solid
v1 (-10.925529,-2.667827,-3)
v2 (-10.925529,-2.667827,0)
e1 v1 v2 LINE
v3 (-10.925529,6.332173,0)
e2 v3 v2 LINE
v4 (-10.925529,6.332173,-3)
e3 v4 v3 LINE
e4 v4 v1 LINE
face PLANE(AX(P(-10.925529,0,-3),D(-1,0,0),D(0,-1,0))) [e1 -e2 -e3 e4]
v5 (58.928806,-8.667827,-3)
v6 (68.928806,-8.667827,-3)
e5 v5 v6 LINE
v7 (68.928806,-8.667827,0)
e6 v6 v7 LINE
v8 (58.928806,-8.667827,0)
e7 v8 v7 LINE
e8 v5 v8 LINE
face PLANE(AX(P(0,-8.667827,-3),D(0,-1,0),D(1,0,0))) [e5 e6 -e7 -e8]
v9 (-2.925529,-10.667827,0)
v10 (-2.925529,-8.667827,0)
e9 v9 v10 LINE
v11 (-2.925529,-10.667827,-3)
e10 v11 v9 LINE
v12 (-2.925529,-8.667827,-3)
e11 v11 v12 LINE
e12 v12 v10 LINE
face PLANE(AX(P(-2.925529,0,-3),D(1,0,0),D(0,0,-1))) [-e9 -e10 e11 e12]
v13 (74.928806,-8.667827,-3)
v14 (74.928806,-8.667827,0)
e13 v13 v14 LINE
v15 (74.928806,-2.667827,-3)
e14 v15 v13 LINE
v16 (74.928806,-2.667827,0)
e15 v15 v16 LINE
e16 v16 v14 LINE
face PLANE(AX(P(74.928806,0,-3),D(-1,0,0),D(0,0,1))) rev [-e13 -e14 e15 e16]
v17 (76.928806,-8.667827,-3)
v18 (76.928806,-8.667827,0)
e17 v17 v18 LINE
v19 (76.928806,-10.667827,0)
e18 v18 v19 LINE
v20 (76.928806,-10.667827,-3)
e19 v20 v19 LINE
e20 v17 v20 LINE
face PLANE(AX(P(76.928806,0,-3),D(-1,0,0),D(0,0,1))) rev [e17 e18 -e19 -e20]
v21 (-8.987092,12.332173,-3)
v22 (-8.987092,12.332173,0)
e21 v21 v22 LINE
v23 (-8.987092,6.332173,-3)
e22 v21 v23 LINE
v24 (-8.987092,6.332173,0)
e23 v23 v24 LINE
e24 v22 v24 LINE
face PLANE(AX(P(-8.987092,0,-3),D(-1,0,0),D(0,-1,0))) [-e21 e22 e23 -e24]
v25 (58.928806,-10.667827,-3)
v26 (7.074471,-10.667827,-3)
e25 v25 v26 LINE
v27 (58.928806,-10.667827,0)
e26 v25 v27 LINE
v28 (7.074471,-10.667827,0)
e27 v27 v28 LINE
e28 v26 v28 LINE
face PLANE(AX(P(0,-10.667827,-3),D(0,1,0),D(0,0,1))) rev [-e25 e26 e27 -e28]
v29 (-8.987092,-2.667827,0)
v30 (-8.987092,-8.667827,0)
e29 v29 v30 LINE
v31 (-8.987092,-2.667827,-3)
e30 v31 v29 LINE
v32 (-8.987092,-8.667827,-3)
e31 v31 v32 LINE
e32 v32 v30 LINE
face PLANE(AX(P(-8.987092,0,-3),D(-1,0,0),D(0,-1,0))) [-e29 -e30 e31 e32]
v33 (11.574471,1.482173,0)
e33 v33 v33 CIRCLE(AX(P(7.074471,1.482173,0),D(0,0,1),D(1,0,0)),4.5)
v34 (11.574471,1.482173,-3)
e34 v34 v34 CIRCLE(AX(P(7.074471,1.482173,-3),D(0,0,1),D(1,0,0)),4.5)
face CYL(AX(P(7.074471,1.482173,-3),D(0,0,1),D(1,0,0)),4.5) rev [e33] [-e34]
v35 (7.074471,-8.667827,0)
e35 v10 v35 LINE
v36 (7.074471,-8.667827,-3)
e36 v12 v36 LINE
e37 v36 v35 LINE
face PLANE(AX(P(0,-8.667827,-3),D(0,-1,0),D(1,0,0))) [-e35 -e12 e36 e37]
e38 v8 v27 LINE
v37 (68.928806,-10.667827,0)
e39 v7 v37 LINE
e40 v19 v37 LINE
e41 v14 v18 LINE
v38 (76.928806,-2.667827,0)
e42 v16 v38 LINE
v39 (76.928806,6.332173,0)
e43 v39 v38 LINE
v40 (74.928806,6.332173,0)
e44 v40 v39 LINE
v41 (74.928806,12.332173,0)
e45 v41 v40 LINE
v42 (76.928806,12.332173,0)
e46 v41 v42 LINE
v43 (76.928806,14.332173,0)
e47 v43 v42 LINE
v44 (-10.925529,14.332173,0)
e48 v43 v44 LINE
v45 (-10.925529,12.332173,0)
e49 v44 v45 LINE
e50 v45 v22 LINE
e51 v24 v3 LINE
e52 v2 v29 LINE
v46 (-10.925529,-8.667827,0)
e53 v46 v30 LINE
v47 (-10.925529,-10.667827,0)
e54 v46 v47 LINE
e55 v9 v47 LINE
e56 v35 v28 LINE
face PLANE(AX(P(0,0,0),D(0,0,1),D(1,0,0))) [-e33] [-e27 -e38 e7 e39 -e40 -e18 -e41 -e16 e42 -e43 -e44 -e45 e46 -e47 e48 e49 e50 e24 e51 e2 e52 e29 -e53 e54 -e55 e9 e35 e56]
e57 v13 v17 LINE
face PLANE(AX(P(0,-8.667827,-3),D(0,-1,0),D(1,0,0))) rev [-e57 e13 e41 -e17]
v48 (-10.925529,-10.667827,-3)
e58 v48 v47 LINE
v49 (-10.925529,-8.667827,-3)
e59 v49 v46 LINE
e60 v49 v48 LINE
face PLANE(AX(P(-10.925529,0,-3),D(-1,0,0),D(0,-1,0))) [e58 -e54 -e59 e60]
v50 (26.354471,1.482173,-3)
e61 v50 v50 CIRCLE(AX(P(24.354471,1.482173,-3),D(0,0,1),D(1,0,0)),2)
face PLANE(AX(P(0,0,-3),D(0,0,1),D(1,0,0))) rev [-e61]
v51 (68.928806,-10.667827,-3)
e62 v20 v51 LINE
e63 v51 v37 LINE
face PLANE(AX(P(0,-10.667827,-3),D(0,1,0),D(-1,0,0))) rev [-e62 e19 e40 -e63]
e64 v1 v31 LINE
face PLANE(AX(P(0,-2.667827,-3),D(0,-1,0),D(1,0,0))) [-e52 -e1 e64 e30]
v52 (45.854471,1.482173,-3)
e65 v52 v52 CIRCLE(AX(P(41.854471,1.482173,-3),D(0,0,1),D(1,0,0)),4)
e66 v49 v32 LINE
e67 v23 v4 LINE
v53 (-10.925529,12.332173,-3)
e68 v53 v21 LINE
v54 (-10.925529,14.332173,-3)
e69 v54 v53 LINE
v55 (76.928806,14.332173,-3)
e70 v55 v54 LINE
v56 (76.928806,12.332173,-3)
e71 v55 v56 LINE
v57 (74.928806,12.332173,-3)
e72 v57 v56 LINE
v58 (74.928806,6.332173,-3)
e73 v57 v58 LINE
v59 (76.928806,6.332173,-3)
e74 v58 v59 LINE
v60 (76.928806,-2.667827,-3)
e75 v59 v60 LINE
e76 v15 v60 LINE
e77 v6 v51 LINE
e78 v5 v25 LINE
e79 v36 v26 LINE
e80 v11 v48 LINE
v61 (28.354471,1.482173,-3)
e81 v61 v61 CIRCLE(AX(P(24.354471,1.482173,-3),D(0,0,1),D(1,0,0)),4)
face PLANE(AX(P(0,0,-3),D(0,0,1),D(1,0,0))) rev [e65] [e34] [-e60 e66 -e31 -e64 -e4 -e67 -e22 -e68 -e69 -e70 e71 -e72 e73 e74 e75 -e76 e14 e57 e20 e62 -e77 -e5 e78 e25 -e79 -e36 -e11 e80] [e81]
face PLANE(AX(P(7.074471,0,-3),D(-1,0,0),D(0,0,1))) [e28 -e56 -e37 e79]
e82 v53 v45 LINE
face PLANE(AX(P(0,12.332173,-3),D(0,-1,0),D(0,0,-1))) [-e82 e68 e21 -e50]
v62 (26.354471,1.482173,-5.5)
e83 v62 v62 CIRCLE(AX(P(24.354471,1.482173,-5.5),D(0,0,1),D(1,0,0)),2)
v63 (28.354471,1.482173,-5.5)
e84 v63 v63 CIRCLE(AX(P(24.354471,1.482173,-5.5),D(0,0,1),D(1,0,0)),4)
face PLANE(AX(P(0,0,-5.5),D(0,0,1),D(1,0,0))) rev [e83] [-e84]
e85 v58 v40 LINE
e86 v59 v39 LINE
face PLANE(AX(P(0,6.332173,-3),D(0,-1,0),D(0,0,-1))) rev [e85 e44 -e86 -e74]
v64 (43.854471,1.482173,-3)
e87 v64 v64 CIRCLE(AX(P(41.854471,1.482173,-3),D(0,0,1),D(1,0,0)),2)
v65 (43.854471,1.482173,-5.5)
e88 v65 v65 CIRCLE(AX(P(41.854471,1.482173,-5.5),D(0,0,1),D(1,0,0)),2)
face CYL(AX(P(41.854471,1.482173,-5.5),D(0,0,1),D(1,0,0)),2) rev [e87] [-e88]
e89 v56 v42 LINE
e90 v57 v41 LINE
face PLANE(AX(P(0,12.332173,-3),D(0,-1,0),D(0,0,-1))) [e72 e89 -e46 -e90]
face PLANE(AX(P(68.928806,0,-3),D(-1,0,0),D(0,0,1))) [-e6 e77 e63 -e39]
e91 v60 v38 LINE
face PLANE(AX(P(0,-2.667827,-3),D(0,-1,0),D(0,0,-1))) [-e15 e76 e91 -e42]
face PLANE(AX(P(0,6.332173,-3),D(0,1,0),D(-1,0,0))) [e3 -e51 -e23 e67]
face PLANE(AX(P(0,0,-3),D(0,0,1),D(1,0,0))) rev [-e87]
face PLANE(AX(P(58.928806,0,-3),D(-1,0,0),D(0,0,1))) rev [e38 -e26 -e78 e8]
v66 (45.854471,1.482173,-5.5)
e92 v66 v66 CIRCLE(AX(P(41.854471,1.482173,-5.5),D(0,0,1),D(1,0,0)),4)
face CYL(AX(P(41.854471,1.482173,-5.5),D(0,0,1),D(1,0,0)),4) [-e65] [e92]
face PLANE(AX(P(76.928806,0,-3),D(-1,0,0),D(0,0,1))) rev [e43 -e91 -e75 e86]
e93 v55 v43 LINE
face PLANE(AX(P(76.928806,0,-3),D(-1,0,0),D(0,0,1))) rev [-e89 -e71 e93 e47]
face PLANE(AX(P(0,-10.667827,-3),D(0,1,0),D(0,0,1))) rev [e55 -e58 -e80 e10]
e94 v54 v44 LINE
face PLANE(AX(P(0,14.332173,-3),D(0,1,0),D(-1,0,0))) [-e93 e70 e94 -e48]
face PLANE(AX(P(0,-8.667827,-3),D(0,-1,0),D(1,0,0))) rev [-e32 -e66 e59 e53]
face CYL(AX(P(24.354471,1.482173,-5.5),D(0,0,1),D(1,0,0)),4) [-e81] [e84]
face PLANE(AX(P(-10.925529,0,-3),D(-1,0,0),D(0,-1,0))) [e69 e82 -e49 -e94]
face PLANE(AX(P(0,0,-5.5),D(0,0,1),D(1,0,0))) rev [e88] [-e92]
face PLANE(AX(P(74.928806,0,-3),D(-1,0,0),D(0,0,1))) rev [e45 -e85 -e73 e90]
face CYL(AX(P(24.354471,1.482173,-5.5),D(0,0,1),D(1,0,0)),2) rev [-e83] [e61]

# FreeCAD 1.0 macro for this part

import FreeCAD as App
import Part
import Sketcher
Q = App.Units.Quantity

doc = App.newDocument("Part")
body = doc.addObject("PartDesign::Body", "Body")

# Sketch on XY plane
sketch1 = body.newObject("Sketcher::SketchObject", "Sketch")
sketch1.AttachmentSupport = (doc.getObject("XY_Plane"), [""])
sketch1.MapMode = "FlatFace"
sketch1.addGeometry(Part.LineSegment(App.Vector(7.074471, -10.667827, 0), App.Vector(58.928806, -10.667827, 0)), False)
sketch1.addGeometry(Part.LineSegment(App.Vector(58.928806, -10.667827, 0), App.Vector(58.928806, -8.667827, 0)), False)
sketch1.addGeometry(Part.LineSegment(App.Vector(58.928806, -8.667827, 0), App.Vector(68.928806, -8.667827, 0)), False)
sketch1.addGeometry(Part.LineSegment(App.Vector(68.928806, -8.667827, 0), App.Vector(68.928806, -10.667827, 0)), False)
sketch1.addGeometry(Part.LineSegment(App.Vector(68.928806, -10.667827, 0), App.Vector(76.928806, -10.667827, 0)), False)
sketch1.addGeometry(Part.LineSegment(App.Vector(76.928806, -10.667827, 0), App.Vector(76.928806, -8.667827, 0)), False)
sketch1.addGeometry(Part.LineSegment(App.Vector(76.928806, -8.667827, 0), App.Vector(74.928806, -8.667827, 0)), False)
sketch1.addGeometry(Part.LineSegment(App.Vector(74.928806, -8.667827, 0), App.Vector(74.928806, -2.667827, 0)), False)
sketch1.addGeometry(Part.LineSegment(App.Vector(74.928806, -2.667827, 0), App.Vector(76.928806, -2.667827, 0)), False)
sketch1.addGeometry(Part.LineSegment(App.Vector(76.928806, -2.667827, 0), App.Vector(76.928806, 6.332173, 0)), False)
sketch1.addGeometry(Part.LineSegment(App.Vector(76.928806, 6.332173, 0), App.Vector(74.928806, 6.332173, 0)), False)
sketch1.addGeometry(Part.LineSegment(App.Vector(74.928806, 6.332173, 0), App.Vector(74.928806, 12.332173, 0)), False)
sketch1.addGeometry(Part.LineSegment(App.Vector(74.928806, 12.332173, 0), App.Vector(76.928806, 12.332173, 0)), False)
sketch1.addGeometry(Part.LineSegment(App.Vector(76.928806, 12.332173, 0), App.Vector(76.928806, 14.332173, 0)), False)
sketch1.addGeometry(Part.LineSegment(App.Vector(76.928806, 14.332173, 0), App.Vector(-10.925529, 14.332173, 0)), False)
sketch1.addGeometry(Part.LineSegment(App.Vector(-10.925529, 14.332173, 0), App.Vector(-10.925529, 12.332173, 0)), False)
sketch1.addGeometry(Part.LineSegment(App.Vector(-10.925529, 12.332173, 0), App.Vector(-8.987092, 12.332173, 0)), False)
sketch1.addGeometry(Part.LineSegment(App.Vector(-8.987092, 12.332173, 0), App.Vector(-8.987092, 6.332173, 0)), False)
sketch1.addGeometry(Part.LineSegment(App.Vector(-8.987092, 6.332173, 0), App.Vector(-10.925529, 6.332173, 0)), False)
sketch1.addGeometry(Part.LineSegment(App.Vector(-10.925529, 6.332173, 0), App.Vector(-10.925529, -2.667827, 0)), False)
sketch1.addGeometry(Part.LineSegment(App.Vector(-10.925529, -2.667827, 0), App.Vector(-8.987092, -2.667827, 0)), False)
sketch1.addGeometry(Part.LineSegment(App.Vector(-8.987092, -2.667827, 0), App.Vector(-8.987092, -8.667827, 0)), False)
sketch1.addGeometry(Part.LineSegment(App.Vector(-8.987092, -8.667827, 0), App.Vector(-10.925529, -8.667827, 0)), False)
sketch1.addGeometry(Part.LineSegment(App.Vector(-10.925529, -8.667827, 0), App.Vector(-10.925529, -10.667827, 0)), False)
sketch1.addGeometry(Part.LineSegment(App.Vector(-10.925529, -10.667827, 0), App.Vector(-2.925529, -10.667827, 0)), False)
sketch1.addGeometry(Part.LineSegment(App.Vector(-2.925529, -10.667827, 0), App.Vector(-2.925529, -8.667827, 0)), False)
sketch1.addGeometry(Part.LineSegment(App.Vector(-2.925529, -8.667827, 0), App.Vector(7.074471, -8.667827, 0)), False)
sketch1.addGeometry(Part.LineSegment(App.Vector(7.074471, -8.667827, 0), App.Vector(7.074471, -10.667827, 0)), False)
sketch1.addGeometry(Part.Circle(App.Vector(7.074471, 1.482173, 0), App.Vector(0, 0, 1), 4.5), False)
sketch1.addConstraint(Sketcher.Constraint("Coincident", 0, 2, 1, 1))
sketch1.addConstraint(Sketcher.Constraint("Coincident", 1, 2, 2, 1))
sketch1.addConstraint(Sketcher.Constraint("Coincident", 2, 2, 3, 1))
sketch1.addConstraint(Sketcher.Constraint("Coincident", 3, 2, 4, 1))
sketch1.addConstraint(Sketcher.Constraint("Coincident", 4, 2, 5, 1))
sketch1.addConstraint(Sketcher.Constraint("Coincident", 5, 2, 6, 1))
sketch1.addConstraint(Sketcher.Constraint("Coincident", 6, 2, 7, 1))
sketch1.addConstraint(Sketcher.Constraint("Coincident", 7, 2, 8, 1))
sketch1.addConstraint(Sketcher.Constraint("Coincident", 8, 2, 9, 1))
sketch1.addConstraint(Sketcher.Constraint("Coincident", 9, 2, 10, 1))
sketch1.addConstraint(Sketcher.Constraint("Coincident", 10, 2, 11, 1))
sketch1.addConstraint(Sketcher.Constraint("Coincident", 11, 2, 12, 1))
sketch1.addConstraint(Sketcher.Constraint("Coincident", 12, 2, 13, 1))
sketch1.addConstraint(Sketcher.Constraint("Coincident", 13, 2, 14, 1))
sketch1.addConstraint(Sketcher.Constraint("Coincident", 14, 2, 15, 1))
sketch1.addConstraint(Sketcher.Constraint("Coincident", 15, 2, 16, 1))
sketch1.addConstraint(Sketcher.Constraint("Coincident", 16, 2, 17, 1))
sketch1.addConstraint(Sketcher.Constraint("Coincident", 17, 2, 18, 1))
sketch1.addConstraint(Sketcher.Constraint("Coincident", 18, 2, 19, 1))
sketch1.addConstraint(Sketcher.Constraint("Coincident", 19, 2, 20, 1))
sketch1.addConstraint(Sketcher.Constraint("Coincident", 20, 2, 21, 1))
sketch1.addConstraint(Sketcher.Constraint("Coincident", 21, 2, 22, 1))
sketch1.addConstraint(Sketcher.Constraint("Coincident", 22, 2, 23, 1))
sketch1.addConstraint(Sketcher.Constraint("Coincident", 23, 2, 24, 1))
sketch1.addConstraint(Sketcher.Constraint("Coincident", 24, 2, 25, 1))
sketch1.addConstraint(Sketcher.Constraint("Coincident", 25, 2, 26, 1))
sketch1.addConstraint(Sketcher.Constraint("Coincident", 26, 2, 27, 1))
sketch1.addConstraint(Sketcher.Constraint("Coincident", 27, 2, 0, 1))
sketch1.addConstraint(Sketcher.Constraint("Horizontal", 0))
sketch1.addConstraint(Sketcher.Constraint("Vertical", 1))
sketch1.addConstraint(Sketcher.Constraint("Horizontal", 2))
sketch1.addConstraint(Sketcher.Constraint("Vertical", 3))
sketch1.addConstraint(Sketcher.Constraint("Horizontal", 4))
sketch1.addConstraint(Sketcher.Constraint("Vertical", 5))
sketch1.addConstraint(Sketcher.Constraint("Horizontal", 6))
sketch1.addConstraint(Sketcher.Constraint("Vertical", 7))
sketch1.addConstraint(Sketcher.Constraint("Horizontal", 8))
sketch1.addConstraint(Sketcher.Constraint("Vertical", 9))
sketch1.addConstraint(Sketcher.Constraint("Horizontal", 10))
sketch1.addConstraint(Sketcher.Constraint("Vertical", 11))
sketch1.addConstraint(Sketcher.Constraint("Horizontal", 12))
sketch1.addConstraint(Sketcher.Constraint("Vertical", 13))
sketch1.addConstraint(Sketcher.Constraint("Horizontal", 14))
sketch1.addConstraint(Sketcher.Constraint("Vertical", 15))
sketch1.addConstraint(Sketcher.Constraint("Horizontal", 16))
sketch1.addConstraint(Sketcher.Constraint("Vertical", 17))
sketch1.addConstraint(Sketcher.Constraint("Horizontal", 18))
sketch1.addConstraint(Sketcher.Constraint("Vertical", 19))
sketch1.addConstraint(Sketcher.Constraint("Horizontal", 20))
sketch1.addConstraint(Sketcher.Constraint("Vertical", 21))
sketch1.addConstraint(Sketcher.Constraint("Horizontal", 22))
sketch1.addConstraint(Sketcher.Constraint("Vertical", 23))
sketch1.addConstraint(Sketcher.Constraint("Horizontal", 24))
sketch1.addConstraint(Sketcher.Constraint("Vertical", 25))
sketch1.addConstraint(Sketcher.Constraint("Horizontal", 26))
sketch1.addConstraint(Sketcher.Constraint("Vertical", 27))
sketch1.addConstraint(Sketcher.Constraint("Horizontal", 0, 2, 3, 2))
sketch1.addConstraint(Sketcher.Constraint("Horizontal", 2, 2, 5, 2))
sketch1.addConstraint(Sketcher.Constraint("Horizontal", 12, 2, 15, 2))
sketch1.addConstraint(Sketcher.Constraint("Horizontal", 10, 2, 17, 2))
sketch1.addConstraint(Sketcher.Constraint("Horizontal", 8, 2, 19, 2))
sketch1.addConstraint(Sketcher.Constraint("Horizontal", 6, 2, 21, 2))
sketch1.addConstraint(Sketcher.Constraint("Horizontal", 4, 2, 23, 2))
sketch1.addConstraint(Sketcher.Constraint("Horizontal", 22, 2, 25, 2))
sketch1.addConstraint(Sketcher.Constraint("Vertical", 5, 2, 8, 2))
sketch1.addConstraint(Sketcher.Constraint("Vertical", 7, 2, 10, 2))
sketch1.addConstraint(Sketcher.Constraint("Vertical", 9, 2, 12, 2))
sketch1.addConstraint(Sketcher.Constraint("Vertical", 15, 2, 18, 2))
sketch1.addConstraint(Sketcher.Constraint("Vertical", 17, 2, 20, 2))
sketch1.addConstraint(Sketcher.Constraint("Vertical", 19, 2, 22, 2))
sketch1.addConstraint(Sketcher.Constraint("Vertical", 28, 3, 26, 2))
sketch1.addConstraint(Sketcher.Constraint("Equal", 4, 24))
sketch1.addConstraint(Sketcher.Constraint("Equal", 2, 26))
sketch1.addConstraint(Sketcher.Constraint("Equal", 12, 1))
sketch1.addConstraint(Sketcher.Constraint("Equal", 7, 11))
sketch1.addConstraint(Sketcher.Constraint("Equal", 5, 13))
sketch1.addConstraint(Sketcher.Constraint("Diameter", 28, Q("9 mm")))
sketch1.addConstraint(Sketcher.Constraint("DistanceX", 2, 1, 2, 2, Q("10 mm")))
sketch1.addConstraint(Sketcher.Constraint("DistanceX", 4, 1, 4, 2, Q("8 mm")))
sketch1.addConstraint(Sketcher.Constraint("DistanceX", 6, 2, 6, 1, Q("2 mm")))
sketch1.addConstraint(Sketcher.Constraint("DistanceY", 7, 1, 7, 2, Q("6 mm")))
sketch1.addConstraint(Sketcher.Constraint("DistanceY", 9, 1, 9, 2, Q("9 mm")))
sketch1.addConstraint(Sketcher.Constraint("DistanceY", 0, 2, 28, 3, Q("12.15 mm")))
sketch1.addConstraint(Sketcher.Constraint("DistanceX", 0, 1, 0, 2, Q("51.854335 mm")))
sketch1.addConstraint(Sketcher.Constraint("DistanceX", 16, 1, 16, 2, Q("1.938438 mm")))
sketch1.addConstraint(Sketcher.Constraint("DistanceX", -1, 1, 28, 3, Q("7.074471 mm")))
sketch1.addConstraint(Sketcher.Constraint("DistanceY", -1, 1, 28, 3, Q("1.482173 mm")))
pad1 = body.newObject("PartDesign::Pad", "Pad")
pad1.Profile = sketch1
pad1.Length = 3
pad1.Reversed = True

# Sketch on XY plane
sketch2 = body.newObject("Sketcher::SketchObject", "Sketch001")
sketch2.AttachmentSupport = (doc.getObject("XY_Plane"), [""])
sketch2.MapMode = "FlatFace"
sketch2.addGeometry(Part.Circle(App.Vector(24.354471, 1.482173, 0), App.Vector(0, 0, 1), 4), False)
sketch2.addGeometry(Part.Circle(App.Vector(24.354471, 1.482173, 0), App.Vector(0, 0, 1), 2), False)
sketch2.addGeometry(Part.Circle(App.Vector(41.854471, 1.482173, 0), App.Vector(0, 0, 1), 4), False)
sketch2.addGeometry(Part.Circle(App.Vector(41.854471, 1.482173, 0), App.Vector(0, 0, 1), 2), False)
sketch2.addConstraint(Sketcher.Constraint("Coincident", 1, 3, 0, 3))
sketch2.addConstraint(Sketcher.Constraint("Coincident", 3, 3, 2, 3))
sketch2.addConstraint(Sketcher.Constraint("Equal", 0, 2))
sketch2.addConstraint(Sketcher.Constraint("Equal", 1, 3))
sketch2.addConstraint(Sketcher.Constraint("Horizontal", 1, 3, 2, 3))
sketch2.addConstraint(Sketcher.Constraint("Diameter", 0, Q("8 mm")))
sketch2.addConstraint(Sketcher.Constraint("Diameter", 1, Q("4 mm")))
sketch2.addConstraint(Sketcher.Constraint("DistanceX", 0, 3, 2, 3, Q("17.5 mm")))
sketch2.addConstraint(Sketcher.Constraint("DistanceX", -1, 1, 0, 3, Q("24.354471 mm")))
sketch2.addConstraint(Sketcher.Constraint("DistanceY", -1, 1, 0, 3, Q("1.482173 mm")))
pad2 = body.newObject("PartDesign::Pad", "Pad001")
pad2.Profile = sketch2
pad2.Length = 5.5
pad2.Reversed = True

doc.recompute()
